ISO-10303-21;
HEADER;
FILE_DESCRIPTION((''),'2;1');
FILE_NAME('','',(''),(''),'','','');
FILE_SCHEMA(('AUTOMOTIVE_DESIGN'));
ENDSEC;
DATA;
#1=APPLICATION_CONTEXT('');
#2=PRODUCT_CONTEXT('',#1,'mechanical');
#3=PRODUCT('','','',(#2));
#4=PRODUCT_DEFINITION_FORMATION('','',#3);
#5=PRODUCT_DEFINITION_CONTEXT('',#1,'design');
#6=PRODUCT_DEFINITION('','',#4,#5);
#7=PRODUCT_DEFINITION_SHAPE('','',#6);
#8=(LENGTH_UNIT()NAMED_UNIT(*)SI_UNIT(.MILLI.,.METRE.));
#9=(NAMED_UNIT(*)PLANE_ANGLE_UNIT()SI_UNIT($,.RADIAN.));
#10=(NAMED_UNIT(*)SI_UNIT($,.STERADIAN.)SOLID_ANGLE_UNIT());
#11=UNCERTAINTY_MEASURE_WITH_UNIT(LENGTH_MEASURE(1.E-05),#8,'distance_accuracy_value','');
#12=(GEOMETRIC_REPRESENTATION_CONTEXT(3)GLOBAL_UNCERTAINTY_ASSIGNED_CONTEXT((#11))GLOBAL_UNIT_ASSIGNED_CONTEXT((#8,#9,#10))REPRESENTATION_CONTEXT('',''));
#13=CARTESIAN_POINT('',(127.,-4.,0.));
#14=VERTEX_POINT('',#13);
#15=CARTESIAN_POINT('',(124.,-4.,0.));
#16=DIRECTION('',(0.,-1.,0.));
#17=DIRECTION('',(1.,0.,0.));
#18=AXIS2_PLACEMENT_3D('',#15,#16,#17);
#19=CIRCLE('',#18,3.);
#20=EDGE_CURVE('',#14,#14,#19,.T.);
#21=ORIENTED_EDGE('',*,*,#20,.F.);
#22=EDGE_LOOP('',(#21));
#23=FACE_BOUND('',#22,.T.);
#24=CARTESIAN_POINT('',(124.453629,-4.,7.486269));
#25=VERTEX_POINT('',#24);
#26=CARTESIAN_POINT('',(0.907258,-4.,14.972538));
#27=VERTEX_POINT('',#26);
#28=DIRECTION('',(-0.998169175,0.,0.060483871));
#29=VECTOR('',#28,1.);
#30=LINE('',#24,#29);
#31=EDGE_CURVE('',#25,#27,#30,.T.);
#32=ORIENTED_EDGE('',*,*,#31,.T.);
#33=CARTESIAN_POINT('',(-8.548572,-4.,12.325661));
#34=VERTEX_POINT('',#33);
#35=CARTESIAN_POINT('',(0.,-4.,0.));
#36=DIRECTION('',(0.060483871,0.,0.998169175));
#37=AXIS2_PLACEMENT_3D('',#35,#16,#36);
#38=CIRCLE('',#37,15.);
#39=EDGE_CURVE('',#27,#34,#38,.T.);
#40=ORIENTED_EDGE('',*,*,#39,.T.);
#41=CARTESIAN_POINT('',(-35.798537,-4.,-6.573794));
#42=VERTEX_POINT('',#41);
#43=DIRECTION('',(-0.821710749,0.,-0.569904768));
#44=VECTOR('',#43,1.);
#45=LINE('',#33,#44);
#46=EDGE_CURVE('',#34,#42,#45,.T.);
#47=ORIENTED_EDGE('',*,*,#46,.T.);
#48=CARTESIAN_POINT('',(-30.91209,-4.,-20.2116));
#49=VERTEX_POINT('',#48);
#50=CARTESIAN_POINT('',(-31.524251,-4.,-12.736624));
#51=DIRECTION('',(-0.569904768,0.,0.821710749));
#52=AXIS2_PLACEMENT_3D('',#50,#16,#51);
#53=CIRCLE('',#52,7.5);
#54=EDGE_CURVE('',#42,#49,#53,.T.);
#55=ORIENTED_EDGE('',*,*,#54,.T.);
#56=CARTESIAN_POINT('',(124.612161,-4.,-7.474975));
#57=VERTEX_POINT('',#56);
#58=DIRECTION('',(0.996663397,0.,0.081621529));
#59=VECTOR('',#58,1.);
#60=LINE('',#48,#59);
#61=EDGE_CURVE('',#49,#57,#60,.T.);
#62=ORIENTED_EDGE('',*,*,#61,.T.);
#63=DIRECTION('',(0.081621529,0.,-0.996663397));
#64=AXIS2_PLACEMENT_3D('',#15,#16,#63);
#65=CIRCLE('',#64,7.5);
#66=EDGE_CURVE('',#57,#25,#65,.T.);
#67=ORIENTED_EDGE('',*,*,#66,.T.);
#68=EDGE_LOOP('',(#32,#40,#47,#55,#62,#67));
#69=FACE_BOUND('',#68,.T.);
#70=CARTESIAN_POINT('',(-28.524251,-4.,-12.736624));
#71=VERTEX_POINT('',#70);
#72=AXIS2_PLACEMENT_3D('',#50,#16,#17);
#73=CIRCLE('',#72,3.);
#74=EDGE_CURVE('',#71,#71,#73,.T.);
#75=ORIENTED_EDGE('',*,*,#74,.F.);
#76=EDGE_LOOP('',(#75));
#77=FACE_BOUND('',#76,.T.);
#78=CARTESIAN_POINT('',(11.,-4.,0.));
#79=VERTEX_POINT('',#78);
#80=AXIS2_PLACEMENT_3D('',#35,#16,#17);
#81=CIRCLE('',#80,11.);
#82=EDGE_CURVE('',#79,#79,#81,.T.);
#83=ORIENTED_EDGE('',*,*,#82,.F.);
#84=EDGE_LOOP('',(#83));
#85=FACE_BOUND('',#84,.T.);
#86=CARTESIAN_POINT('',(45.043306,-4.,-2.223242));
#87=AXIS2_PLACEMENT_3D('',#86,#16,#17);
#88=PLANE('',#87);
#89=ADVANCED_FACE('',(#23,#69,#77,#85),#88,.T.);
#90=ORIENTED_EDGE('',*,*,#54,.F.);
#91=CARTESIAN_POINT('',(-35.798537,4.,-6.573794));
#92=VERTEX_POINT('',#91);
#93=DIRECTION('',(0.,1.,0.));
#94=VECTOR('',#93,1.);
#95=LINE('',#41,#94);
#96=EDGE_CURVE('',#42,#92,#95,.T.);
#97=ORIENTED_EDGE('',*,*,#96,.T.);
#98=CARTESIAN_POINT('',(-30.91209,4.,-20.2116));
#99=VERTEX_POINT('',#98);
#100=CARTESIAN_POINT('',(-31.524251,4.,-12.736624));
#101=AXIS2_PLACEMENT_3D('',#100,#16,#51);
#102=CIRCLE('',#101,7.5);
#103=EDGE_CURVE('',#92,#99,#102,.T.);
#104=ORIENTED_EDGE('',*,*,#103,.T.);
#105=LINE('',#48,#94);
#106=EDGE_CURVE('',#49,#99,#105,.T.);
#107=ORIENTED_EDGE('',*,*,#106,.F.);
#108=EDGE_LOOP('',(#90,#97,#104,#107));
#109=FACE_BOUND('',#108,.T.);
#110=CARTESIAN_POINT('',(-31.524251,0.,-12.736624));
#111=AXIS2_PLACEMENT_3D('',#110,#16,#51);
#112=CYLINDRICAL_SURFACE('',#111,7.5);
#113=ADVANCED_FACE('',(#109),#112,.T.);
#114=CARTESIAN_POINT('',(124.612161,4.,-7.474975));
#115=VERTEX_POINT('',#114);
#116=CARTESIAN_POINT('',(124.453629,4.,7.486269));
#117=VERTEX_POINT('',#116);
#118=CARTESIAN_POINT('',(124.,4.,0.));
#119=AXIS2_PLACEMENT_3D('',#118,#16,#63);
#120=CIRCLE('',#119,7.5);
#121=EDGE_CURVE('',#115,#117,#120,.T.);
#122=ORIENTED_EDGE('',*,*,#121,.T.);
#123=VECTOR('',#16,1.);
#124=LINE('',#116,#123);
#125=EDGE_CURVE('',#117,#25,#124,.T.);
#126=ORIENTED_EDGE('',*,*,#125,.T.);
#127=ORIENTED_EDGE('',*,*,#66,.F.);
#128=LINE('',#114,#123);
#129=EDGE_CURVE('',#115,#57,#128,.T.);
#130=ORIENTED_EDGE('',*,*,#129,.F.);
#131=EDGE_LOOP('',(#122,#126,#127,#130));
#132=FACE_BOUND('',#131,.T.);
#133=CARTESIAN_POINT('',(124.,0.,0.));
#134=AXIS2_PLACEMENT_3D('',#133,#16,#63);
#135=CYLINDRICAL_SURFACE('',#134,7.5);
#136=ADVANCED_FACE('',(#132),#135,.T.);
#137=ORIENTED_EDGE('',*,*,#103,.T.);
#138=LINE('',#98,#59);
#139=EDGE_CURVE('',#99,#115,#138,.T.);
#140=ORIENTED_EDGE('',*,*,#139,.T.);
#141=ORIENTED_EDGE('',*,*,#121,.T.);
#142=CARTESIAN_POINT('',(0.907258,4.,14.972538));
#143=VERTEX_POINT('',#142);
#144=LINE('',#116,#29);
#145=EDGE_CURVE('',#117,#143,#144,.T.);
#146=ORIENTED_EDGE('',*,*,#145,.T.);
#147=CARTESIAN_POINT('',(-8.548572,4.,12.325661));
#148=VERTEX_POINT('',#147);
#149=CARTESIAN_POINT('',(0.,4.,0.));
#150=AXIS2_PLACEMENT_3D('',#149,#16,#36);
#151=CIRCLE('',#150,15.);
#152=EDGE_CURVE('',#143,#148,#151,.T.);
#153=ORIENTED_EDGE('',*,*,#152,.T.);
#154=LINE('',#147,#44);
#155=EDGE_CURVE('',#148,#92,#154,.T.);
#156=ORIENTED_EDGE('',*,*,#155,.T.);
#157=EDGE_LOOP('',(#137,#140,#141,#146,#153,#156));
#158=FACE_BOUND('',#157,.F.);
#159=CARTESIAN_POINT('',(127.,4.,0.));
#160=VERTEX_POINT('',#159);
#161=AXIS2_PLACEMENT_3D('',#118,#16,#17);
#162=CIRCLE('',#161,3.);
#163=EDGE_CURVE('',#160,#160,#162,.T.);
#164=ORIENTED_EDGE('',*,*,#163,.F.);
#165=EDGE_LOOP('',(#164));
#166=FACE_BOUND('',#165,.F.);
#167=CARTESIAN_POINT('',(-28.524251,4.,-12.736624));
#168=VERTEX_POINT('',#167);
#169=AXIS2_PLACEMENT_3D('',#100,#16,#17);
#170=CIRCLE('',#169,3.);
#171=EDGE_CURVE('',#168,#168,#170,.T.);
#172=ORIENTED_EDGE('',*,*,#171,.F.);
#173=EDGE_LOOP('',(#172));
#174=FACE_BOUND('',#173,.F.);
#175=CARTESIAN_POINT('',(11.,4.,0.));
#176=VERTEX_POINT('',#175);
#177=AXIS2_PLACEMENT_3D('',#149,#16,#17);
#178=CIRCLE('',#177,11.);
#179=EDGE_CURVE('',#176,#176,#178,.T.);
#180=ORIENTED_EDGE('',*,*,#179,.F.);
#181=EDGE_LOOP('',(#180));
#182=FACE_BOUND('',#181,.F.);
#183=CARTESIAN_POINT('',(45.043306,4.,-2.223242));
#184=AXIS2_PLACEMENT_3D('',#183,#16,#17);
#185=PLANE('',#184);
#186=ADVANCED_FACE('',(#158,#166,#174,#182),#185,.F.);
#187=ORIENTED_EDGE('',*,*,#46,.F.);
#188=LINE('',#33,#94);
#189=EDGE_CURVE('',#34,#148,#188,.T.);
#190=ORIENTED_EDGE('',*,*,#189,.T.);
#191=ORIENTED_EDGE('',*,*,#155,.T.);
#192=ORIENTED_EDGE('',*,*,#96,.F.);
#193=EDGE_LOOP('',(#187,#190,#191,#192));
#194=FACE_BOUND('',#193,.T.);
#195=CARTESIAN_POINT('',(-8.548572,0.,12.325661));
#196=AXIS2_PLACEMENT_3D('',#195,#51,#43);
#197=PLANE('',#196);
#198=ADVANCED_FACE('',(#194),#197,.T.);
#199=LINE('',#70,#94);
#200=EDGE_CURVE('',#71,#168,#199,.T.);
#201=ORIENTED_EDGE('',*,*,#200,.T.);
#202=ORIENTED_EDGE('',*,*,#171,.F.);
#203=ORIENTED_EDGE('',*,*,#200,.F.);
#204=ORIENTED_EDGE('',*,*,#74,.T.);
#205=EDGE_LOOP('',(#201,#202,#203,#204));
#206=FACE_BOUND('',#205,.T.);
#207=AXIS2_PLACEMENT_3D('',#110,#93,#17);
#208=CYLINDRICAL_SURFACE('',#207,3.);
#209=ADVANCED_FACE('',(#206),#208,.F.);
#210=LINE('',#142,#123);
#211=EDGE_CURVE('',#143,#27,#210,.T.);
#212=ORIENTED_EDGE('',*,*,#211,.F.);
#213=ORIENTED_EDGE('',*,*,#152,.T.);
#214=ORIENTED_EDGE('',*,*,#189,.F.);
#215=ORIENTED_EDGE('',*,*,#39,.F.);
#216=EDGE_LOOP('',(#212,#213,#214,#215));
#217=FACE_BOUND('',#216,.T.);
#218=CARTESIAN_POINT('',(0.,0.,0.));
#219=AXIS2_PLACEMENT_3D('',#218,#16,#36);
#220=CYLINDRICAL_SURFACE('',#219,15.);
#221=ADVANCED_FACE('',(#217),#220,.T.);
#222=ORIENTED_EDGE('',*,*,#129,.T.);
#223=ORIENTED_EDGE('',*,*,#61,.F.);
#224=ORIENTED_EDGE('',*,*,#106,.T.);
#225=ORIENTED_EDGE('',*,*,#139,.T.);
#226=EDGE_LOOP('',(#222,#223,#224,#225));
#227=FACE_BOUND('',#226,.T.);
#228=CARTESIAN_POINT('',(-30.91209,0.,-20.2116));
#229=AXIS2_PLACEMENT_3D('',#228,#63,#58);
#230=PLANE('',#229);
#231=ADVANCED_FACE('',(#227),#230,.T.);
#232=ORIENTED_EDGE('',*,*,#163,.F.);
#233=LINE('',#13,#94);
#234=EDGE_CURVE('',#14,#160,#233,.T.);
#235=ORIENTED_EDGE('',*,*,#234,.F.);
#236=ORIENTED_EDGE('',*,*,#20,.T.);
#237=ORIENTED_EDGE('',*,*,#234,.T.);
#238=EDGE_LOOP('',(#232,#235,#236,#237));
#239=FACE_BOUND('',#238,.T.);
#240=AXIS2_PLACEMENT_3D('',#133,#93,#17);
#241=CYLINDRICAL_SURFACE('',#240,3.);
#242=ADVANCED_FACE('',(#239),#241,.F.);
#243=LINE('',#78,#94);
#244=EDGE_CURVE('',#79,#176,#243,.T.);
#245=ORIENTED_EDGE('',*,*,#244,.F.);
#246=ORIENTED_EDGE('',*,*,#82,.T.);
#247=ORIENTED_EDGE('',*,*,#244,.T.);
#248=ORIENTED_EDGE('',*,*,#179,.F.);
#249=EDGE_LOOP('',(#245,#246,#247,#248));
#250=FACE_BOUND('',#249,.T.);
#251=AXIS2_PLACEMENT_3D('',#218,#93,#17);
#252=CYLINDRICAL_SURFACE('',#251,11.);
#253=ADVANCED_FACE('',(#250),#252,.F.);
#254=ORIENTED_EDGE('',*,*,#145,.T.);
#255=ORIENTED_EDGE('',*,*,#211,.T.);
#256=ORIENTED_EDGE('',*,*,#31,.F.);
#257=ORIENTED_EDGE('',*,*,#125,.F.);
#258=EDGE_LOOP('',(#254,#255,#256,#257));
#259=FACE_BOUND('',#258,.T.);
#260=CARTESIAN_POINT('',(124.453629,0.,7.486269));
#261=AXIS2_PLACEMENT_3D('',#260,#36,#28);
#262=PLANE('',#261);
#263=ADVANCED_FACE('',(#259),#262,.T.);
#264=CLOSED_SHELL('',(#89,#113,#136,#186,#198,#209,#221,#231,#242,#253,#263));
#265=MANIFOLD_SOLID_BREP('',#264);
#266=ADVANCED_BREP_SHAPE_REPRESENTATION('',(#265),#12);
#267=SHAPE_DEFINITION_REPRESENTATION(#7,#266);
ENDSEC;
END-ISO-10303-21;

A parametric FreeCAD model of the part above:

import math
import FreeCAD as App
import Part
import Sketcher

V = App.Vector
Q = App.Units.Quantity

doc = App.newDocument("Part")
body = doc.addObject("PartDesign::Body", "Body")

# Sketch on XZ plane
sketch1 = body.newObject("Sketcher::SketchObject", "Sketch")
sketch1.AttachmentSupport = (doc.getObject("XZ_Plane"), [""])
sketch1.MapMode = "FlatFace"
sketch1.addGeometry([
    Part.LineSegment(V(-30.9, -20.2, 0), V(124.6, -7.5, 0)),  # 0
    Part.ArcOfCircle(Part.Circle(V(124, 0, 0), V(0, 0, 1), 7.5), math.radians(-85), math.radians(87)),  # 1
    Part.LineSegment(V(124.5, 7.5, 0), V(0.9, 15, 0)),  # 2
    Part.ArcOfCircle(Part.Circle(V(0, 0, 0), V(0, 0, 1), 15), math.radians(87), math.radians(125)),  # 3
    Part.LineSegment(V(-8.5, 12.3, 0), V(-35.8, -6.6, 0)),  # 4
    Part.ArcOfCircle(Part.Circle(V(-31.5, -12.7, 0), V(0, 0, 1), 7.5), math.radians(125), math.radians(275)),  # 5
    Part.Circle(V(-31.5, -12.7, 0), V(0, 0, 1), 3),  # 6
    Part.Circle(V(0, 0, 0), V(0, 0, 1), 11),  # 7
    Part.Circle(V(124, 0, 0), V(0, 0, 1), 3),  # 8
], False)
sketch1.addConstraint([
    Sketcher.Constraint("Tangent", 0, 2, 1, 1),
    Sketcher.Constraint("Tangent", 1, 2, 2, 1),
    Sketcher.Constraint("Tangent", 2, 2, 3, 1),
    Sketcher.Constraint("Tangent", 3, 2, 4, 1),
    Sketcher.Constraint("Tangent", 4, 2, 5, 1),
    Sketcher.Constraint("Tangent", 5, 2, 0, 1),
    Sketcher.Constraint("Coincident", 3, 3, -1, 1),
    Sketcher.Constraint("Coincident", 7, 3, -1, 1),
    Sketcher.Constraint("Coincident", 6, 3, 5, 3),
    Sketcher.Constraint("Coincident", 8, 3, 1, 3),
    Sketcher.Constraint("Equal", 1, 5),
    Sketcher.Constraint("Equal", 6, 8),
    Sketcher.Constraint("PointOnObject", 1, 3, -1),
    Sketcher.Constraint("Diameter", 6, Q("6 mm")),
    Sketcher.Constraint("Diameter", 7, Q("22 mm")),
    Sketcher.Constraint("Radius", 3, Q("15 mm")),
    Sketcher.Constraint("Radius", 1, Q("7.5 mm")),
    Sketcher.Constraint("DistanceX", -1, 1, 1, 3, Q("124 mm")),
    Sketcher.Constraint("DistanceY", 5, 2, -1, 1, Q("20.2116 mm")),
    Sketcher.Constraint("Distance", 0, Q("156.044911 mm")),
])
pad1 = body.newObject("PartDesign::Pad", "Pad")
pad1.Profile = sketch1
pad1.Length = 8
pad1.Midplane = True

doc.recompute()
